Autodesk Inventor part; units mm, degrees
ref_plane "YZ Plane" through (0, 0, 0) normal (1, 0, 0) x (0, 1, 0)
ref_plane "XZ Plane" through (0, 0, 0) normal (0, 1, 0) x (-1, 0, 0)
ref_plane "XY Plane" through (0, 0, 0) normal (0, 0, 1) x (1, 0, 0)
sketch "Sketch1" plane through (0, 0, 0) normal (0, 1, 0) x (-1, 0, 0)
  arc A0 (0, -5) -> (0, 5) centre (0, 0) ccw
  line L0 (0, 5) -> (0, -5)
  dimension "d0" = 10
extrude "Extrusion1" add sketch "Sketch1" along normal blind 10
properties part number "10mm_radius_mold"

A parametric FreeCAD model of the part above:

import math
import FreeCAD as App
import Part
import Sketcher

V = App.Vector
Q = App.Units.Quantity

doc = App.newDocument("Part")
body = doc.addObject("PartDesign::Body", "Body")

# Sketch on XZ plane
sketch1 = body.newObject("Sketcher::SketchObject", "Sketch")
sketch1.AttachmentSupport = (doc.getObject("XZ_Plane"), [""])
sketch1.MapMode = "FlatFace"
sketch1.addGeometry(Part.LineSegment(V(0, 5, 0), V(0, -5, 0)), False)
sketch1.addGeometry(Part.ArcOfCircle(Part.Circle(V(0, 0, 0), V(0, 0, 1), 5), math.radians(90), math.radians(270)), False)
sketch1.addConstraint(Sketcher.Constraint("Coincident", 0, 1, 1, 1))
sketch1.addConstraint(Sketcher.Constraint("Coincident", 1, 2, 0, 2))
sketch1.addConstraint(Sketcher.Constraint("Vertical", 0))
sketch1.addConstraint(Sketcher.Constraint("Coincident", 1, 3, -1, 1))
sketch1.addConstraint(Sketcher.Constraint("PointOnObject", 0, 1, -2))
sketch1.addConstraint(Sketcher.Constraint("Radius", 1, Q("5 mm")))
pad1 = body.newObject("PartDesign::Pad", "Pad")
pad1.Profile = sketch1
pad1.Length = 10
pad1.Reversed = True

doc.recompute()
